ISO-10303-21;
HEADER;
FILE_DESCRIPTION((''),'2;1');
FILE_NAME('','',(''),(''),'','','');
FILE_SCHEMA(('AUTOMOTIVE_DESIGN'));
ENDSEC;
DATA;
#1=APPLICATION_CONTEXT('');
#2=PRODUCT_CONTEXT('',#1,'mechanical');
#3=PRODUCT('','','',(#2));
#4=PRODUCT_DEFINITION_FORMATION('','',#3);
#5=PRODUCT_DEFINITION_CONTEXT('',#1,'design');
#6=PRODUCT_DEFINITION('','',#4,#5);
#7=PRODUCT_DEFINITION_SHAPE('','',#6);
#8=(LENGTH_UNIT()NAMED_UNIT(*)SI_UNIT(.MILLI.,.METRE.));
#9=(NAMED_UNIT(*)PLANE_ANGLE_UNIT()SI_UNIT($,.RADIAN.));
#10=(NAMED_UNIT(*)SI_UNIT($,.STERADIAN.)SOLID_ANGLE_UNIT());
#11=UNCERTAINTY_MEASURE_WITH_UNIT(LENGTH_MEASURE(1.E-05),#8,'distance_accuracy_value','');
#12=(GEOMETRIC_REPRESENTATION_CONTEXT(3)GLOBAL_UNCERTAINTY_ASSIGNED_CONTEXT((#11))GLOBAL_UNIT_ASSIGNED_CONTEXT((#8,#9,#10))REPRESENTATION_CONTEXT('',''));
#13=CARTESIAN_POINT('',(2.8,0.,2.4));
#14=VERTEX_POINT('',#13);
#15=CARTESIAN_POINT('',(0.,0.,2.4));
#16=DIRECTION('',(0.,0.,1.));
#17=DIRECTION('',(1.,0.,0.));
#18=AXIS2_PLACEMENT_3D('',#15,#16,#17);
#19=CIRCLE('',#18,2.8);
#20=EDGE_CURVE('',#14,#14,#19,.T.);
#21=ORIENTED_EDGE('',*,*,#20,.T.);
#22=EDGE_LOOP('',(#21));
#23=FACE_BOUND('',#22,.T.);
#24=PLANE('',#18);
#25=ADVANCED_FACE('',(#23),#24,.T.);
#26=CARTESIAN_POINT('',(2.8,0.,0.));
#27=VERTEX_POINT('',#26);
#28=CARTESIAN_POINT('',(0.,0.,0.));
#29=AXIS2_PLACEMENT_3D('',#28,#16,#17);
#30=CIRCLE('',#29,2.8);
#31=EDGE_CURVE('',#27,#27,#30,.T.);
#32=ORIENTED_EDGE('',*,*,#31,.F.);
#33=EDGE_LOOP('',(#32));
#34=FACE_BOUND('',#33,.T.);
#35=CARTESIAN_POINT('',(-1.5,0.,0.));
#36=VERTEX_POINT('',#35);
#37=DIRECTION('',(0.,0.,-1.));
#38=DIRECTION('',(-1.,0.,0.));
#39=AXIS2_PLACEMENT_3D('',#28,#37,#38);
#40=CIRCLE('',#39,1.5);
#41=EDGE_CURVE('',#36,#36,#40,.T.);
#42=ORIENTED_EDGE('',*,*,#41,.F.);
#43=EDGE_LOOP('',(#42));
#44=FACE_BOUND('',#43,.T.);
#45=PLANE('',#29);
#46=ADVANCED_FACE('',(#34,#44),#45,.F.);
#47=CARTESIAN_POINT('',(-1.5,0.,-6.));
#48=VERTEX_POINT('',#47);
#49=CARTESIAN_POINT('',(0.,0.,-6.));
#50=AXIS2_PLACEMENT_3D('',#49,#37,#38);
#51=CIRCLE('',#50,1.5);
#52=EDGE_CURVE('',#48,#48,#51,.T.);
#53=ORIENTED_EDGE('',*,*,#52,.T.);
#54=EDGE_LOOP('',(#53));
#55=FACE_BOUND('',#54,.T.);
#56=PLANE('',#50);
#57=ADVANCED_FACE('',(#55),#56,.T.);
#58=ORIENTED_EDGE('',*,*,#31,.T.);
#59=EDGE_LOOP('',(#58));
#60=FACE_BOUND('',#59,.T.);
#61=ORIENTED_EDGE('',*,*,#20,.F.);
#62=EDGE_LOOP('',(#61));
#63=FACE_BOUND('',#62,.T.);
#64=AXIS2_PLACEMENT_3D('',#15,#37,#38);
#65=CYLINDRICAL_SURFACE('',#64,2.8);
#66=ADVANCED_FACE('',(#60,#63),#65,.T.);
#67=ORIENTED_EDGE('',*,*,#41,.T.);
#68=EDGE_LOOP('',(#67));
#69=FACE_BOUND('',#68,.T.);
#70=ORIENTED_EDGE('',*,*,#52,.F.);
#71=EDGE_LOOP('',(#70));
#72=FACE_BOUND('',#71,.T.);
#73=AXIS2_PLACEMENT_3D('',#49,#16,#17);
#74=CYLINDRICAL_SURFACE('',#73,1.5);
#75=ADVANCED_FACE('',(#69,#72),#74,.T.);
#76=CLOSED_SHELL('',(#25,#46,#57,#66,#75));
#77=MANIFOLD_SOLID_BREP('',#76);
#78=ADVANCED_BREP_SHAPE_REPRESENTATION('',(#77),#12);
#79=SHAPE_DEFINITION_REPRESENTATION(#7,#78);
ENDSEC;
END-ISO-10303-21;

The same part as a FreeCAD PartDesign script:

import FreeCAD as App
import Part
import Sketcher
from FreeCAD import Vector
Q = App.Units.Quantity

doc = App.newDocument("Part")
params = doc.addObject("Spreadsheet::Sheet", "Params")
for row, (alias, value) in enumerate([
    ("sketch1_diameter", "5.6 mm"),
    ("pad1_length", "2.4 mm"),
    ("sketch2_diameter", "3 mm"),
    ("pad2_length", "6 mm"),
], start=1):
    params.set(f"A{row}", alias)
    params.set(f"B{row}", "=" + value)
    params.setAlias(f"B{row}", alias)

body = doc.addObject("PartDesign::Body", "Body")

sketch1 = body.newObject("Sketcher::SketchObject", "Sketch")
sketch1.AttachmentSupport = (doc.getObject("XY_Plane"), [""])
sketch1.MapMode = "FlatFace"
sketch1.addGeometry(Part.Circle(Vector(0, 0, 0), Vector(0, 0, 1), 2.8), False)
sketch1.addConstraint([
    Sketcher.Constraint("Coincident", 0, 3, -1, 1),
    Sketcher.Constraint("Diameter", 0, Q("5.6 mm")),
])
sketch1.setExpression("Constraints[1]", "Params.sketch1_diameter")
pad1 = body.newObject("PartDesign::Pad", "Pad")
pad1.Profile = sketch1
pad1.setExpression("Length", "Params.pad1_length")

sketch2 = body.newObject("Sketcher::SketchObject", "Sketch001")
sketch2.AttachmentSupport = (doc.getObject("XY_Plane"), [""])
sketch2.MapMode = "FlatFace"
sketch2.addGeometry(Part.Circle(Vector(0, 0, 0), Vector(0, 0, 1), 1.5), False)
sketch2.addConstraint([
    Sketcher.Constraint("Coincident", 0, 3, -1, 1),
    Sketcher.Constraint("Diameter", 0, Q("3 mm")),
])
sketch2.setExpression("Constraints[1]", "Params.sketch2_diameter")
pad2 = body.newObject("PartDesign::Pad", "Pad001")
pad2.Profile = sketch2
pad2.setExpression("Length", "Params.pad2_length")
pad2.Reversed = True

doc.recompute()
